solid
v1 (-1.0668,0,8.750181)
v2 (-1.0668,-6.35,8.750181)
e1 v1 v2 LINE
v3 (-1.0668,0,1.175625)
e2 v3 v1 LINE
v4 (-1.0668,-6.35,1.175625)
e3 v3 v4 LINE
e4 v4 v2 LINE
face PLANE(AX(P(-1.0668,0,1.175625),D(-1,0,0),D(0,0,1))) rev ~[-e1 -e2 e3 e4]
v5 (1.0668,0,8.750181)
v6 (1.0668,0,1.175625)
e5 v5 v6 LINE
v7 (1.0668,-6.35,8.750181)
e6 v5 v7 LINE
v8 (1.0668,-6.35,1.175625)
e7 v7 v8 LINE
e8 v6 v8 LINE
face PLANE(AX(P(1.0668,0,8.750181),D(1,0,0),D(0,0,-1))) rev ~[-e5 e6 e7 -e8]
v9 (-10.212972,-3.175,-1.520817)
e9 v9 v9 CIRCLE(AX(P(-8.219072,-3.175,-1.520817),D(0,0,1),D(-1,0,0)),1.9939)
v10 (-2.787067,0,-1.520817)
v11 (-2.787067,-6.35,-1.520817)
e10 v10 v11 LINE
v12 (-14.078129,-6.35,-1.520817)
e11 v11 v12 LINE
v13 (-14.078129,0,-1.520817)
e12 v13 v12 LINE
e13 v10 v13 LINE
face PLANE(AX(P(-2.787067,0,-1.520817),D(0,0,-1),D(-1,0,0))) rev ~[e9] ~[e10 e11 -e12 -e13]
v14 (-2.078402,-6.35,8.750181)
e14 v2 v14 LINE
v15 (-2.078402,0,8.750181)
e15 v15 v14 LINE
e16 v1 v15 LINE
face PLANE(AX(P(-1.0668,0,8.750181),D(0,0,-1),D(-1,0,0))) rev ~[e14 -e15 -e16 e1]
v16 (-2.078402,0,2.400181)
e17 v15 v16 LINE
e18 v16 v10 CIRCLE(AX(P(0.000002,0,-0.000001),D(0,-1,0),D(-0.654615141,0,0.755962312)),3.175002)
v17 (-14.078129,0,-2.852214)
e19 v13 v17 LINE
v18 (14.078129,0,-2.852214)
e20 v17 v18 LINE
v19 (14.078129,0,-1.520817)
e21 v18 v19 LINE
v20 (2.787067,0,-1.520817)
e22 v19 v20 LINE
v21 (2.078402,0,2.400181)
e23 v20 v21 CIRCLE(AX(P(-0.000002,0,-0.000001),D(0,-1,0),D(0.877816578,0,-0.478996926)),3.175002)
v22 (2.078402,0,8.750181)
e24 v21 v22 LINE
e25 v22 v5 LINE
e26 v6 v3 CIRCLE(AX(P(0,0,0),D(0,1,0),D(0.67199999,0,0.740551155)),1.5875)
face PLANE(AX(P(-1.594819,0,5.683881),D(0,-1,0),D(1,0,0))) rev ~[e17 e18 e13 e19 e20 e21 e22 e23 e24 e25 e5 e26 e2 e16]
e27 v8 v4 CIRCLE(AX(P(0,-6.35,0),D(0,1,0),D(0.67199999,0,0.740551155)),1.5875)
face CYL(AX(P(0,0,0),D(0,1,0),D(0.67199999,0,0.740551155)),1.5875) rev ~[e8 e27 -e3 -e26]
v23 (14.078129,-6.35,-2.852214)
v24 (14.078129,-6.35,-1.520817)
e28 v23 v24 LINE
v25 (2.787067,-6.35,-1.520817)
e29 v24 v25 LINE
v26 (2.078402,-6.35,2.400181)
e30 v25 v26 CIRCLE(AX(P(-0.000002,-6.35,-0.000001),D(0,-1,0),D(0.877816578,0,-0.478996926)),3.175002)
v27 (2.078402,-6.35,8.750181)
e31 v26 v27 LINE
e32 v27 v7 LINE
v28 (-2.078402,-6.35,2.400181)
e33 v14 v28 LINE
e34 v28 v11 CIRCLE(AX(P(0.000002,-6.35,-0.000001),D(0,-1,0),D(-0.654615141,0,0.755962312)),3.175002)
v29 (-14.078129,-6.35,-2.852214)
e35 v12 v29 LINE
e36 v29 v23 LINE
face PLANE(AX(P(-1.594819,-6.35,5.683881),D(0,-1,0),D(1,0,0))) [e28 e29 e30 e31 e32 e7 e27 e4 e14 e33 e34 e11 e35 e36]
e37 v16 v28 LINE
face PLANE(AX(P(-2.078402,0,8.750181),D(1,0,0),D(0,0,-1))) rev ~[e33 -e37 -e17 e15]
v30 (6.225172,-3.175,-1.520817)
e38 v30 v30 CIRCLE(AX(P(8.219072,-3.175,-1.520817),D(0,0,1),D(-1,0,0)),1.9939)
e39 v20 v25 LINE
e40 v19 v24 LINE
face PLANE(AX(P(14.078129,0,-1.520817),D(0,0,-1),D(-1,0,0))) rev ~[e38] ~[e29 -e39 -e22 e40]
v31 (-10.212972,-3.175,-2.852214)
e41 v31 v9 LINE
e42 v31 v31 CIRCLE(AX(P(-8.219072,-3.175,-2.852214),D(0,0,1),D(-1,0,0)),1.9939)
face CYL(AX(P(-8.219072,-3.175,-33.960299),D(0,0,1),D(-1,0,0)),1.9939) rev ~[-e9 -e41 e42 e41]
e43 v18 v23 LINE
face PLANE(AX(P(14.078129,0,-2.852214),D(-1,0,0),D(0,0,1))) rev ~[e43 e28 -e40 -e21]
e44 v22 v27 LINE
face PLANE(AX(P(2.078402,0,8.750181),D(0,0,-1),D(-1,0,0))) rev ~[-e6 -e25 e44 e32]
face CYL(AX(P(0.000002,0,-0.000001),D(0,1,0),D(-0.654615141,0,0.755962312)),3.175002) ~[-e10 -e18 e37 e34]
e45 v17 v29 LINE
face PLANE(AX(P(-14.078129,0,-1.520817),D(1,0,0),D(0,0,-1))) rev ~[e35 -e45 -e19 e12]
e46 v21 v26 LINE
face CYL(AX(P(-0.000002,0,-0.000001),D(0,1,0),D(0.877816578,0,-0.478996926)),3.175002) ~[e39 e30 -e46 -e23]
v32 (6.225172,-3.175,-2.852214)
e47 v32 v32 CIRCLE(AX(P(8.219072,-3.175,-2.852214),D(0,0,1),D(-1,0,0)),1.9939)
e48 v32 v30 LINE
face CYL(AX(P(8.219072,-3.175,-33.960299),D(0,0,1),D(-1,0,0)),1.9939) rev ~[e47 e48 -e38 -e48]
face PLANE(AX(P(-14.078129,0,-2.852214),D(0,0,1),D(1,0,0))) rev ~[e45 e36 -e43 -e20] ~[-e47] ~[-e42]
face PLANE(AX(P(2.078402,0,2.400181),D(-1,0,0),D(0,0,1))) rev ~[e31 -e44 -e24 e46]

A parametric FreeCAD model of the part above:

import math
import FreeCAD as App
import Part
import Sketcher
Q = App.Units.Quantity

doc = App.newDocument("Part")
params = doc.addObject("Spreadsheet::Sheet", "Params")
for row, (alias, value) in enumerate([
    ("sketch1_radius", "0.1250001 in"),
    ("sketch1_radius2", "0.0625 in"),
    ("sketch1_height", "0.25 in"),
    ("pad1_length", "0.25 in"),
    ("sketch2_diameter", "0.157 in"),
    ("hole_diameter", "0.157 in"),
], start=1):
    params.set(f"A{row}", alias)
    params.set(f"B{row}", "=" + value)
    params.setAlias(f"B{row}", alias)

body = doc.addObject("PartDesign::Body", "Body")

sketch1 = body.newObject("Sketcher::SketchObject", "Sketch")
sketch1.AttachmentSupport = (doc.getObject("XZ_Plane"), [""])
sketch1.MapMode = "FlatFace"
sketch1.addGeometry([
    Part.LineSegment(App.Vector(-1.1, 8.8, 0), App.Vector(-2.1, 8.8, 0)),
    Part.LineSegment(App.Vector(-2.1, 8.8, 0), App.Vector(-2.1, 2.4, 0)),
    Part.ArcOfCircle(Part.Circle(App.Vector(0, 0, 0), App.Vector(0, 0, 1), 3.2), math.radians(131), math.radians(209)),
    Part.LineSegment(App.Vector(-2.8, -1.5, 0), App.Vector(-14.1, -1.5, 0)),
    Part.LineSegment(App.Vector(-14.1, -1.5, 0), App.Vector(-14.1, -2.9, 0)),
    Part.LineSegment(App.Vector(-14.1, -2.9, 0), App.Vector(14.1, -2.9, 0)),
    Part.LineSegment(App.Vector(14.1, -2.9, 0), App.Vector(14.1, -1.5, 0)),
    Part.LineSegment(App.Vector(14.1, -1.5, 0), App.Vector(2.8, -1.5, 0)),
    Part.ArcOfCircle(Part.Circle(App.Vector(0, 0, 0), App.Vector(0, 0, 1), 3.2), math.radians(-29), math.radians(49)),
    Part.LineSegment(App.Vector(2.1, 2.4, 0), App.Vector(2.1, 8.8, 0)),
    Part.LineSegment(App.Vector(2.1, 8.8, 0), App.Vector(1.1, 8.8, 0)),
    Part.LineSegment(App.Vector(1.1, 8.8, 0), App.Vector(1.1, 1.2, 0)),
    Part.ArcOfCircle(Part.Circle(App.Vector(0, 0, 0), App.Vector(0, 0, 1), 1.6), math.radians(132), math.radians(408)),
    Part.LineSegment(App.Vector(-1.1, 1.2, 0), App.Vector(-1.1, 8.8, 0)),
], False)
sketch1.addConstraint([
    Sketcher.Constraint("Coincident", 0, 2, 1, 1),
    Sketcher.Constraint("Coincident", 1, 2, 2, 1),
    Sketcher.Constraint("Coincident", 2, 2, 3, 1),
    Sketcher.Constraint("Coincident", 3, 2, 4, 1),
    Sketcher.Constraint("Coincident", 4, 2, 5, 1),
    Sketcher.Constraint("Coincident", 5, 2, 6, 1),
    Sketcher.Constraint("Coincident", 6, 2, 7, 1),
    Sketcher.Constraint("Coincident", 7, 2, 8, 1),
    Sketcher.Constraint("Coincident", 8, 2, 9, 1),
    Sketcher.Constraint("Coincident", 9, 2, 10, 1),
    Sketcher.Constraint("Coincident", 10, 2, 11, 1),
    Sketcher.Constraint("Coincident", 11, 2, 12, 2),
    Sketcher.Constraint("Coincident", 12, 1, 13, 1),
    Sketcher.Constraint("Coincident", 13, 2, 0, 1),
    Sketcher.Constraint("Horizontal", 0),
    Sketcher.Constraint("Vertical", 1),
    Sketcher.Constraint("Horizontal", 3),
    Sketcher.Constraint("Vertical", 4),
    Sketcher.Constraint("Horizontal", 5),
    Sketcher.Constraint("Vertical", 6),
    Sketcher.Constraint("Horizontal", 7),
    Sketcher.Constraint("Vertical", 9),
    Sketcher.Constraint("Horizontal", 10),
    Sketcher.Constraint("Vertical", 11),
    Sketcher.Constraint("Vertical", 13),
    Sketcher.Constraint("Coincident", 2, 3, -1, 1),
    Sketcher.Constraint("Coincident", 8, 3, -1, 1),
    Sketcher.Constraint("Coincident", 12, 3, -1, 1),
    Sketcher.Constraint("Equal", 2, 8),
    Sketcher.Constraint("Symmetric", 3, 2, 6, 2, -2),
    Sketcher.Constraint("Symmetric", 0, 2, 9, 2, -2),
    Sketcher.Constraint("Horizontal", 11, 2, 12, 1),
    Sketcher.Constraint("Radius", 2, Q("0.1250001 in")),
    Sketcher.Constraint("Radius", 12, Q("0.0625 in")),
    Sketcher.Constraint("DistanceY", 1, 2, 1, 1, Q("0.25 in")),
    Sketcher.Constraint("DistanceX", -1, 1, 10, 2, Q("0.042 in")),
    Sketcher.Constraint("DistanceX", 2, 2, 1, 2, Q("0.0279002 in")),
    Sketcher.Constraint("DistanceX", 5, 1, 5, 2, 28.156258),
    Sketcher.Constraint("DistanceX", -1, 1, 8, 2, 2.078402),
    Sketcher.Constraint("DistanceY", 4, 2, 4, 1, 1.331397),
])
sketch1.setExpression("Constraints[32]", "Params.sketch1_radius")
sketch1.setExpression("Constraints[33]", "Params.sketch1_radius2")
sketch1.setExpression("Constraints[34]", "Params.sketch1_height")
pad1 = body.newObject("PartDesign::Pad", "Pad")
pad1.Profile = sketch1
pad1.setExpression("Length", "Params.pad1_length")

sketch2 = body.newObject("Sketcher::SketchObject", "Sketch001")
sketch2.AttachmentSupport = (doc.getObject("XY_Plane"), [""])
sketch2.MapMode = "FlatFace"
sketch2.AttachmentOffset = App.Placement(App.Vector(0, 0, -2.852214), App.Rotation())
sketch2.addGeometry([
    Part.Circle(App.Vector(-8.2, -3.2, 0), App.Vector(0, 0, 1), 2),
    Part.Circle(App.Vector(8.2, -3.2, 0), App.Vector(0, 0, 1), 2),
], False)
sketch2.addConstraint([
    Sketcher.Constraint("Equal", 0, 1),
    Sketcher.Constraint("Symmetric", 0, 3, 1, 3, -2),
    Sketcher.Constraint("Diameter", 0, Q("0.157 in")),
    Sketcher.Constraint("DistanceY", 0, 3, -1, 1, Q("0.125 in")),
    Sketcher.Constraint("DistanceX", 0, 3, -1, 1, 8.219072),
])
sketch2.setExpression("Constraints[2]", "Params.sketch2_diameter")
doc.recompute()
hole = body.newObject("PartDesign::Hole", "Hole")
hole.Profile = sketch2
hole.ThreadType = "None"
hole.setExpression("Diameter", "Params.hole_diameter")
hole.DepthType = "ThroughAll"
hole.Reversed = True

doc.recompute()
